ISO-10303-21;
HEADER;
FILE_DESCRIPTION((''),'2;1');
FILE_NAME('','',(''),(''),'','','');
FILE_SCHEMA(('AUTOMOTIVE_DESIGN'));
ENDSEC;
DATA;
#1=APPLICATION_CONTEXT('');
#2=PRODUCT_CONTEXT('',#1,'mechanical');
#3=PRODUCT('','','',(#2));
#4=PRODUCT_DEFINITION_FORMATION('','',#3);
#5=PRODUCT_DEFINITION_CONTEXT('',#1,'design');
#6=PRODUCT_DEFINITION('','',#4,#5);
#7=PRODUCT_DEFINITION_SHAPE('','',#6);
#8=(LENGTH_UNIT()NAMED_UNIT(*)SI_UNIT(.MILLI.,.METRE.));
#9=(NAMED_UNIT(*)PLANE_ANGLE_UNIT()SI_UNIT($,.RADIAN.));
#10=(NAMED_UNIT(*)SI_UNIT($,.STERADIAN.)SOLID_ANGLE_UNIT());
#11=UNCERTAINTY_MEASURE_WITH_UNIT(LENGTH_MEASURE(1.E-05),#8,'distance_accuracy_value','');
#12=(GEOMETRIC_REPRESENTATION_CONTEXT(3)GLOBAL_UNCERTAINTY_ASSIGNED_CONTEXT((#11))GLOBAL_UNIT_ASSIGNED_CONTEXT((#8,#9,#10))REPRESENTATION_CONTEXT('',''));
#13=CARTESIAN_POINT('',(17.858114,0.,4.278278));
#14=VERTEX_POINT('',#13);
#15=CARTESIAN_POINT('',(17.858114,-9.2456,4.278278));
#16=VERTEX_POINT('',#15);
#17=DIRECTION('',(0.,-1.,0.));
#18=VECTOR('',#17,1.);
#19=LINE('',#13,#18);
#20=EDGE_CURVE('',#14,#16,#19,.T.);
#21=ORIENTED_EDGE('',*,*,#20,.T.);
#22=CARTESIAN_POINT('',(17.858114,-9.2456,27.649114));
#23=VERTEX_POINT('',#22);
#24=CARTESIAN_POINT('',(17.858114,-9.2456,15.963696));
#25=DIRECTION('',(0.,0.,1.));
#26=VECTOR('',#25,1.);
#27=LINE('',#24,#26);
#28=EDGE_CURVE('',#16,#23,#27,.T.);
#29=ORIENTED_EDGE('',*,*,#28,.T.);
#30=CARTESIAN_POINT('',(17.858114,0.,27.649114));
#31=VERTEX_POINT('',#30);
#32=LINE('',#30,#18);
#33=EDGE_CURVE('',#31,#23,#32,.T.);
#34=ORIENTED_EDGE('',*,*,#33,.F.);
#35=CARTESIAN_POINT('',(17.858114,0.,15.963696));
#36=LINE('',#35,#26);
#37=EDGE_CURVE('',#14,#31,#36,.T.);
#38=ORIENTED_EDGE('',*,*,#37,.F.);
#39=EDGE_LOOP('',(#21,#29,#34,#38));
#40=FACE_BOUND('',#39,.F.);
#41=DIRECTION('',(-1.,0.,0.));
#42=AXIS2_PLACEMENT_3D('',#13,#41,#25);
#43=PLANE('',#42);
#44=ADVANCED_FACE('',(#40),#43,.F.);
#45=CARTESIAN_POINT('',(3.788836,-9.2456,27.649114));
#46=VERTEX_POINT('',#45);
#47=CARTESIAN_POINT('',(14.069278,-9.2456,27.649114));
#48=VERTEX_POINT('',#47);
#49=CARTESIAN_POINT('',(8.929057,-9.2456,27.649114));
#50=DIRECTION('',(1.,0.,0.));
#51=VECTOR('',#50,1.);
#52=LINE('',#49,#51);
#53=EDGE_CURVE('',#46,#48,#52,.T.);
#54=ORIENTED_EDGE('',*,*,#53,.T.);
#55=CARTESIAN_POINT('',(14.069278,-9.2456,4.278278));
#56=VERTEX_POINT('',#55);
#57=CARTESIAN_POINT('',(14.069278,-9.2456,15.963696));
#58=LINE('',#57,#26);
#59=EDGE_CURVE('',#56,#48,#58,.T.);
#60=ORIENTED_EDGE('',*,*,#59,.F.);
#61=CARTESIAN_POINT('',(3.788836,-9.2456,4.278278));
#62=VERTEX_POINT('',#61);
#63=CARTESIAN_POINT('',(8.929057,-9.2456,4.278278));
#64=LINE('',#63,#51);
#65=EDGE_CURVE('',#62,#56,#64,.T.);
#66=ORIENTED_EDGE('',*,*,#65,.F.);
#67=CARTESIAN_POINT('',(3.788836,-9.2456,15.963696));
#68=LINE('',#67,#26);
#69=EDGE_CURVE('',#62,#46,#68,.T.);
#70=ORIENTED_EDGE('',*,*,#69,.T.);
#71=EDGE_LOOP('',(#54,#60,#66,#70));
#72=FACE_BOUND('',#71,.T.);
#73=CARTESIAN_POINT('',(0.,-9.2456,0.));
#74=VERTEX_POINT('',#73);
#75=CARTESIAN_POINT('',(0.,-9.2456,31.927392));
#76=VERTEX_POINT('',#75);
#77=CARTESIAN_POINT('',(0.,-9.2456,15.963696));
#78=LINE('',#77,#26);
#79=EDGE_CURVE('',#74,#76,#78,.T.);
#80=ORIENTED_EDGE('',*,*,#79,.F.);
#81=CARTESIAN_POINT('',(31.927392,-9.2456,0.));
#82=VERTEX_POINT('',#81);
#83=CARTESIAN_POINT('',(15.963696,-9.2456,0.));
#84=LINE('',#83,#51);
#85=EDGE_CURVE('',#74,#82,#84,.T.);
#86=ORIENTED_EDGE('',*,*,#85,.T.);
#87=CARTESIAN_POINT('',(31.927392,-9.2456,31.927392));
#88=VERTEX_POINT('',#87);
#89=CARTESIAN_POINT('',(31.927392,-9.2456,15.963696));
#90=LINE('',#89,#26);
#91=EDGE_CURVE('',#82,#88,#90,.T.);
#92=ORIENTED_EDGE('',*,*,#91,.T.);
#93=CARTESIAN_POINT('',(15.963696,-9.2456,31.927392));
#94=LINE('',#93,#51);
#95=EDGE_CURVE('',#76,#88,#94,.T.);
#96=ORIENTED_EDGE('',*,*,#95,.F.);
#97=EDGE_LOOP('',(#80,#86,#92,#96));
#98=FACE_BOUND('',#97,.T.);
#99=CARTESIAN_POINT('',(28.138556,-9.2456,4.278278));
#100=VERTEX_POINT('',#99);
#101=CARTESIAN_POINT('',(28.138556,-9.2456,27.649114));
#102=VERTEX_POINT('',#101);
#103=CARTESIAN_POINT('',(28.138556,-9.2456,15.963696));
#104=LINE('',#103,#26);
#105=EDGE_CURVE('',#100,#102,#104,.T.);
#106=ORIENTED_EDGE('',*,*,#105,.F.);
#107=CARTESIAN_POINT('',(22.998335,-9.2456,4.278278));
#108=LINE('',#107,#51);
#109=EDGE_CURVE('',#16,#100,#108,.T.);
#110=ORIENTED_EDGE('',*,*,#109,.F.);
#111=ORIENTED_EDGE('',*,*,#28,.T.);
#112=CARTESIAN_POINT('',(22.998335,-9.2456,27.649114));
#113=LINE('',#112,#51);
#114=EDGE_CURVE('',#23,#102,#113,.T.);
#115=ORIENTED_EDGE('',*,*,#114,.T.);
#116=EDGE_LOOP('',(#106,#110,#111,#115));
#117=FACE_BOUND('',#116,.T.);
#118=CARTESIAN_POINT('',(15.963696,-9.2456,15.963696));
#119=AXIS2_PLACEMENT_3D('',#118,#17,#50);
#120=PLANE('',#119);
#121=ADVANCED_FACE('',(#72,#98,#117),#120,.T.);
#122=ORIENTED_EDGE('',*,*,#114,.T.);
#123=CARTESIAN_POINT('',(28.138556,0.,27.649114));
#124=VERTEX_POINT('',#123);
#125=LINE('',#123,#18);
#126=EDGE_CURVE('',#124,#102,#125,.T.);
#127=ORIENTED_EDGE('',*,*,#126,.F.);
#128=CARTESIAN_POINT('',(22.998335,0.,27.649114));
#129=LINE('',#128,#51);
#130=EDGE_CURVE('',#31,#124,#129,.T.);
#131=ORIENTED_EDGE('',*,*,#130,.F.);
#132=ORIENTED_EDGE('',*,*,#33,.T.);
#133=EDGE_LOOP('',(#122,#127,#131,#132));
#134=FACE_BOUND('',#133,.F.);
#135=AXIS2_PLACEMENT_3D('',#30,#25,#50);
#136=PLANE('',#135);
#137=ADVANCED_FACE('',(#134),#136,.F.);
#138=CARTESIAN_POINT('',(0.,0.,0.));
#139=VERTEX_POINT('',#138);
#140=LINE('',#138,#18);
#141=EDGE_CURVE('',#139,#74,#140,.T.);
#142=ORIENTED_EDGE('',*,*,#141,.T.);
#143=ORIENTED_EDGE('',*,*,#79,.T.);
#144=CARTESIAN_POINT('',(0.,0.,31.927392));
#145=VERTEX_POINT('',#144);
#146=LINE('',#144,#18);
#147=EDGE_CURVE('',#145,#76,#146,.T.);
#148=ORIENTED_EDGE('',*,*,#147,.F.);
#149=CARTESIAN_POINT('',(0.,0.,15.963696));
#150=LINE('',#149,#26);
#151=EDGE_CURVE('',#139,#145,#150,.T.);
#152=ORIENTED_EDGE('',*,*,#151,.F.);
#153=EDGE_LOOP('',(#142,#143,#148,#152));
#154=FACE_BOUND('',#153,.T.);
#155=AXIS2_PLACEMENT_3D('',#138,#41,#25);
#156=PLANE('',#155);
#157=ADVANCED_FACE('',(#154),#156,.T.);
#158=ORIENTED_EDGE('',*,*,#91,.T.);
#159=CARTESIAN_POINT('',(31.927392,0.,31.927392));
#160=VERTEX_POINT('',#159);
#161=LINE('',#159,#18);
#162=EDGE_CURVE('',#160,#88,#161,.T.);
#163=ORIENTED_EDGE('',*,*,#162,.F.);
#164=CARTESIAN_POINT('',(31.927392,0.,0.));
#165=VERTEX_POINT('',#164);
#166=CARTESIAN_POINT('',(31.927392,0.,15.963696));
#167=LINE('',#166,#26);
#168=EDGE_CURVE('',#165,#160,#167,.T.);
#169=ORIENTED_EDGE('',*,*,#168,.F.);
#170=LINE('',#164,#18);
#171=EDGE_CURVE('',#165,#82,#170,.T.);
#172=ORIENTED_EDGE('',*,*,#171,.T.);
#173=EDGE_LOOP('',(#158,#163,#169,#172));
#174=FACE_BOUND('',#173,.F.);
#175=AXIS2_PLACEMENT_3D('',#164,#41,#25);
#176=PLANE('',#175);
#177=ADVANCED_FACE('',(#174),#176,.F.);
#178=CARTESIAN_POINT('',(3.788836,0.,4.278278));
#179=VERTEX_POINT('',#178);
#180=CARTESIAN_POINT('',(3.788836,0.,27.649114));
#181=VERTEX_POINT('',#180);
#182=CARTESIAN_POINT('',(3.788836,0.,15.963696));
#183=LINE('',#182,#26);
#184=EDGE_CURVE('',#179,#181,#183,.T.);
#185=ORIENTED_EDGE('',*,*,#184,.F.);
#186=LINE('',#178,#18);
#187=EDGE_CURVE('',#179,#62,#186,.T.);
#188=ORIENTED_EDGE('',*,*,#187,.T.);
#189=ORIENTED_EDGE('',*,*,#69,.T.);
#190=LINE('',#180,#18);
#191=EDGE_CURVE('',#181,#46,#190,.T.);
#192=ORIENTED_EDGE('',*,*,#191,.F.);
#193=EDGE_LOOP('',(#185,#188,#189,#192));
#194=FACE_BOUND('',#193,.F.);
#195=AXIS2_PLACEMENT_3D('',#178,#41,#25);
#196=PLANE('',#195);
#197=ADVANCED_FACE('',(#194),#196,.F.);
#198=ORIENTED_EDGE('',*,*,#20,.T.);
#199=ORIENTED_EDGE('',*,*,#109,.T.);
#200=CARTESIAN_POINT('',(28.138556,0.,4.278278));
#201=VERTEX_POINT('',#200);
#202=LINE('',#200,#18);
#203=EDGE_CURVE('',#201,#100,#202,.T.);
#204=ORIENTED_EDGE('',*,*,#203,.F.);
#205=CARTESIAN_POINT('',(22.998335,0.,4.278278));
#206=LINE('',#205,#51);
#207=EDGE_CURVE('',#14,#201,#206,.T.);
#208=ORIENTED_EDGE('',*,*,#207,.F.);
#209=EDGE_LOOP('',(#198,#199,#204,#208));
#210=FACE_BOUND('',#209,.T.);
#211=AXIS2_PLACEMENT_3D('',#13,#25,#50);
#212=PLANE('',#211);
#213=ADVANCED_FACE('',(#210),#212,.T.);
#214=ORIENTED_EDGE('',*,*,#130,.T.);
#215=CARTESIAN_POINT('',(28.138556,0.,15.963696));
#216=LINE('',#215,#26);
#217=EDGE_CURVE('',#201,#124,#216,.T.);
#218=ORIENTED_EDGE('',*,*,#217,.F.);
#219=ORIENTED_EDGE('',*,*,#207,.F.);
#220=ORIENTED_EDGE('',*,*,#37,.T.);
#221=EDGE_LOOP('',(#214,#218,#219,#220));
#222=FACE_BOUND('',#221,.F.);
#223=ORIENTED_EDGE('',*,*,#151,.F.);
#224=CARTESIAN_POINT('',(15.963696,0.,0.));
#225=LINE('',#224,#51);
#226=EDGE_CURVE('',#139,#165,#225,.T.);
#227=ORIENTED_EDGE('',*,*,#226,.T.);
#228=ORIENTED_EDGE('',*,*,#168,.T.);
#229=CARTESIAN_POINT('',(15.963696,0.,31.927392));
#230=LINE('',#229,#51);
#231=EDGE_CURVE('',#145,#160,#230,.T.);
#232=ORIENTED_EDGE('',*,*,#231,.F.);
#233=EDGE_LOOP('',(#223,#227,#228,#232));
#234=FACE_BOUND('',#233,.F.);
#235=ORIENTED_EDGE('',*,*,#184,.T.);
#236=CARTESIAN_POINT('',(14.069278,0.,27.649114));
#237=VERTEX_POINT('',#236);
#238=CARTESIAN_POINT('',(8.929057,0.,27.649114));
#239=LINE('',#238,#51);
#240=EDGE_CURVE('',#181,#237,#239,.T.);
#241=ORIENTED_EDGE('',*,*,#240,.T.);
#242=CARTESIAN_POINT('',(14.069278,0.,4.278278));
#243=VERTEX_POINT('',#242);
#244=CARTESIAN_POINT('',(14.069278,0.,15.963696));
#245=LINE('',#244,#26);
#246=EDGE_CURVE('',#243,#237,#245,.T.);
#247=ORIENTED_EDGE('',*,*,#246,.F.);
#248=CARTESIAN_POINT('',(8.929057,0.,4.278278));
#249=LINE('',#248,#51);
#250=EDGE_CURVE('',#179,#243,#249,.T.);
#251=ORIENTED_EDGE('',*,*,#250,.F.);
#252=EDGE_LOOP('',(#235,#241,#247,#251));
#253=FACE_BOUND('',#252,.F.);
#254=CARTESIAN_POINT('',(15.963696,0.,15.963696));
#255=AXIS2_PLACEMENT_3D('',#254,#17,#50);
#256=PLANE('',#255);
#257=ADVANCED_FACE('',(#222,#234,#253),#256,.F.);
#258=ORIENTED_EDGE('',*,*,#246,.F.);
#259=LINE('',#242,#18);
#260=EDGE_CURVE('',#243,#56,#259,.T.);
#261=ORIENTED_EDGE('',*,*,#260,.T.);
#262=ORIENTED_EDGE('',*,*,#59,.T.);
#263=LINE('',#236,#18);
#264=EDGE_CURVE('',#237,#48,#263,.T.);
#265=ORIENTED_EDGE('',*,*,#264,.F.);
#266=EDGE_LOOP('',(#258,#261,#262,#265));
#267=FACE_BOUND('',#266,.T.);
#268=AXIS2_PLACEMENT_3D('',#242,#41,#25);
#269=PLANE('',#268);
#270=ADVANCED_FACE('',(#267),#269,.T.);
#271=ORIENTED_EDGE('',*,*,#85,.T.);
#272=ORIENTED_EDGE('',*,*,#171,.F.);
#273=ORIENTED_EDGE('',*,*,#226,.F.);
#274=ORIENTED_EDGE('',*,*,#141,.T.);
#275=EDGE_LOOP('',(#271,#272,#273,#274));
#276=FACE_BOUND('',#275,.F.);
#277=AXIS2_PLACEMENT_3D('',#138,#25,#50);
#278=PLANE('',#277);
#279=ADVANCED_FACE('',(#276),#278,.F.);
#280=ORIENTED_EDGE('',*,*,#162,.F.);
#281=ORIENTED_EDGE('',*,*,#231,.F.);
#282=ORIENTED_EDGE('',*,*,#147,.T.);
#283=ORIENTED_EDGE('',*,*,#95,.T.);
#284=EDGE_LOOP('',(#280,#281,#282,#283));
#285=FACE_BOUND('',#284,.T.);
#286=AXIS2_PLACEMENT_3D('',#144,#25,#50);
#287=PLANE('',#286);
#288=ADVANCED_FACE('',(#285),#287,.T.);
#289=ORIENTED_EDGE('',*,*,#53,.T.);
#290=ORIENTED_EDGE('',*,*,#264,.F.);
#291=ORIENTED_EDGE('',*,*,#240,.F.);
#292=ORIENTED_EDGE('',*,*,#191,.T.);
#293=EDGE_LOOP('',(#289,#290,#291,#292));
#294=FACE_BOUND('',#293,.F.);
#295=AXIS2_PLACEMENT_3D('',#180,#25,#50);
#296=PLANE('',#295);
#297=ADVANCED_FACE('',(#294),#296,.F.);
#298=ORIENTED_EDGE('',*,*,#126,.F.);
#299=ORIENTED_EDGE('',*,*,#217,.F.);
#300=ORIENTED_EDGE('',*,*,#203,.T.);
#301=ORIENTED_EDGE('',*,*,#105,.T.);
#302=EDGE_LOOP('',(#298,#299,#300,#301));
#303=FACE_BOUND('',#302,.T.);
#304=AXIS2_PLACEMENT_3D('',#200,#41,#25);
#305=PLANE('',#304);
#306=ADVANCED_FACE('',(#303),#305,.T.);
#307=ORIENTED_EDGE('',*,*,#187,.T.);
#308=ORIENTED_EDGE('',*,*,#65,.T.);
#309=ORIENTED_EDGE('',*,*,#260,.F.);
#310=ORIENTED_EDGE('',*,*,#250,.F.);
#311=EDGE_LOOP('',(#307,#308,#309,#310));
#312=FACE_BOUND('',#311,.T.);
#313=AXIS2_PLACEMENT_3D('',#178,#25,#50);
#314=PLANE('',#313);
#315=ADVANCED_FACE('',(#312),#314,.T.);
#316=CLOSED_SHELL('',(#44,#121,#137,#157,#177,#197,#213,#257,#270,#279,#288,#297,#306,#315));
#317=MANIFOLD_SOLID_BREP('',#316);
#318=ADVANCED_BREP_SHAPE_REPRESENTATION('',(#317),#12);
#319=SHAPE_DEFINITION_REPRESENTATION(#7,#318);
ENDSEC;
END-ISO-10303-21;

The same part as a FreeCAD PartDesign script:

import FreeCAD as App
import Part
import Sketcher
Q = App.Units.Quantity

doc = App.newDocument("Part")
body = doc.addObject("PartDesign::Body", "Body")

# Sketch on XZ plane
sketch1 = body.newObject("Sketcher::SketchObject", "Sketch")
sketch1.AttachmentSupport = (doc.getObject("XZ_Plane"), [""])
sketch1.MapMode = "FlatFace"
sketch1.addGeometry([
    Part.LineSegment(App.Vector(0, 31.927392, 0), App.Vector(0, 0, 0)),  # 0
    Part.LineSegment(App.Vector(0, 0, 0), App.Vector(31.927392, 0, 0)),  # 1
    Part.LineSegment(App.Vector(31.927392, 0, 0), App.Vector(31.927392, 31.927392, 0)),  # 2
    Part.LineSegment(App.Vector(31.927392, 31.927392, 0), App.Vector(0, 31.927392, 0)),  # 3
    Part.LineSegment(App.Vector(14.069278, 4.278278, 0), App.Vector(3.788836, 4.278278, 0)),  # 4
    Part.LineSegment(App.Vector(3.788836, 4.278278, 0), App.Vector(3.788836, 27.649114, 0)),  # 5
    Part.LineSegment(App.Vector(3.788836, 27.649114, 0), App.Vector(14.069278, 27.649114, 0)),  # 6
    Part.LineSegment(App.Vector(14.069278, 27.649114, 0), App.Vector(14.069278, 4.278278, 0)),  # 7
    Part.LineSegment(App.Vector(28.138556, 4.278278, 0), App.Vector(17.858114, 4.278278, 0)),  # 8
    Part.LineSegment(App.Vector(17.858114, 4.278278, 0), App.Vector(17.858114, 27.649114, 0)),  # 9
    Part.LineSegment(App.Vector(17.858114, 27.649114, 0), App.Vector(28.138556, 27.649114, 0)),  # 10
    Part.LineSegment(App.Vector(28.138556, 27.649114, 0), App.Vector(28.138556, 4.278278, 0)),  # 11
], False)
sketch1.addConstraint([
    Sketcher.Constraint("Coincident", 0, 2, 1, 1),
    Sketcher.Constraint("Coincident", 1, 2, 2, 1),
    Sketcher.Constraint("Coincident", 2, 2, 3, 1),
    Sketcher.Constraint("Coincident", 3, 2, 0, 1),
    Sketcher.Constraint("Coincident", 4, 2, 5, 1),
    Sketcher.Constraint("Coincident", 5, 2, 6, 1),
    Sketcher.Constraint("Coincident", 6, 2, 7, 1),
    Sketcher.Constraint("Coincident", 7, 2, 4, 1),
    Sketcher.Constraint("Coincident", 8, 2, 9, 1),
    Sketcher.Constraint("Coincident", 9, 2, 10, 1),
    Sketcher.Constraint("Coincident", 10, 2, 11, 1),
    Sketcher.Constraint("Coincident", 11, 2, 8, 1),
    Sketcher.Constraint("Vertical", 0),
    Sketcher.Constraint("Horizontal", 1),
    Sketcher.Constraint("Vertical", 2),
    Sketcher.Constraint("Horizontal", 3),
    Sketcher.Constraint("Horizontal", 4),
    Sketcher.Constraint("Vertical", 5),
    Sketcher.Constraint("Horizontal", 6),
    Sketcher.Constraint("Vertical", 7),
    Sketcher.Constraint("Horizontal", 8),
    Sketcher.Constraint("Vertical", 9),
    Sketcher.Constraint("Horizontal", 10),
    Sketcher.Constraint("Vertical", 11),
    Sketcher.Constraint("Coincident", 0, 2, -1, 1),
    Sketcher.Constraint("Horizontal", 7, 2, 8, 2),
    Sketcher.Constraint("Horizontal", 6, 2, 9, 2),
    Sketcher.Constraint("Equal", 6, 8),
    Sketcher.Constraint("Equal", 3, 0),
    Sketcher.Constraint("DistanceX", 4, 2, 4, 1, 10.280441),
    Sketcher.Constraint("DistanceX", 1, 1, 1, 2, 31.927392),
    Sketcher.Constraint("DistanceY", 5, 1, 5, 2, 23.370836),
    Sketcher.Constraint("DistanceY", -1, 1, 4, 2, 4.278278),
    Sketcher.Constraint("DistanceX", 8, 2, 1, 2, 14.069278),
    Sketcher.Constraint("DistanceX", 6, 2, 10, 2, 14.069279),
])
pad1 = body.newObject("PartDesign::Pad", "Pad")
pad1.Profile = sketch1
pad1.Length = Q("0.364 in")

doc.recompute()
